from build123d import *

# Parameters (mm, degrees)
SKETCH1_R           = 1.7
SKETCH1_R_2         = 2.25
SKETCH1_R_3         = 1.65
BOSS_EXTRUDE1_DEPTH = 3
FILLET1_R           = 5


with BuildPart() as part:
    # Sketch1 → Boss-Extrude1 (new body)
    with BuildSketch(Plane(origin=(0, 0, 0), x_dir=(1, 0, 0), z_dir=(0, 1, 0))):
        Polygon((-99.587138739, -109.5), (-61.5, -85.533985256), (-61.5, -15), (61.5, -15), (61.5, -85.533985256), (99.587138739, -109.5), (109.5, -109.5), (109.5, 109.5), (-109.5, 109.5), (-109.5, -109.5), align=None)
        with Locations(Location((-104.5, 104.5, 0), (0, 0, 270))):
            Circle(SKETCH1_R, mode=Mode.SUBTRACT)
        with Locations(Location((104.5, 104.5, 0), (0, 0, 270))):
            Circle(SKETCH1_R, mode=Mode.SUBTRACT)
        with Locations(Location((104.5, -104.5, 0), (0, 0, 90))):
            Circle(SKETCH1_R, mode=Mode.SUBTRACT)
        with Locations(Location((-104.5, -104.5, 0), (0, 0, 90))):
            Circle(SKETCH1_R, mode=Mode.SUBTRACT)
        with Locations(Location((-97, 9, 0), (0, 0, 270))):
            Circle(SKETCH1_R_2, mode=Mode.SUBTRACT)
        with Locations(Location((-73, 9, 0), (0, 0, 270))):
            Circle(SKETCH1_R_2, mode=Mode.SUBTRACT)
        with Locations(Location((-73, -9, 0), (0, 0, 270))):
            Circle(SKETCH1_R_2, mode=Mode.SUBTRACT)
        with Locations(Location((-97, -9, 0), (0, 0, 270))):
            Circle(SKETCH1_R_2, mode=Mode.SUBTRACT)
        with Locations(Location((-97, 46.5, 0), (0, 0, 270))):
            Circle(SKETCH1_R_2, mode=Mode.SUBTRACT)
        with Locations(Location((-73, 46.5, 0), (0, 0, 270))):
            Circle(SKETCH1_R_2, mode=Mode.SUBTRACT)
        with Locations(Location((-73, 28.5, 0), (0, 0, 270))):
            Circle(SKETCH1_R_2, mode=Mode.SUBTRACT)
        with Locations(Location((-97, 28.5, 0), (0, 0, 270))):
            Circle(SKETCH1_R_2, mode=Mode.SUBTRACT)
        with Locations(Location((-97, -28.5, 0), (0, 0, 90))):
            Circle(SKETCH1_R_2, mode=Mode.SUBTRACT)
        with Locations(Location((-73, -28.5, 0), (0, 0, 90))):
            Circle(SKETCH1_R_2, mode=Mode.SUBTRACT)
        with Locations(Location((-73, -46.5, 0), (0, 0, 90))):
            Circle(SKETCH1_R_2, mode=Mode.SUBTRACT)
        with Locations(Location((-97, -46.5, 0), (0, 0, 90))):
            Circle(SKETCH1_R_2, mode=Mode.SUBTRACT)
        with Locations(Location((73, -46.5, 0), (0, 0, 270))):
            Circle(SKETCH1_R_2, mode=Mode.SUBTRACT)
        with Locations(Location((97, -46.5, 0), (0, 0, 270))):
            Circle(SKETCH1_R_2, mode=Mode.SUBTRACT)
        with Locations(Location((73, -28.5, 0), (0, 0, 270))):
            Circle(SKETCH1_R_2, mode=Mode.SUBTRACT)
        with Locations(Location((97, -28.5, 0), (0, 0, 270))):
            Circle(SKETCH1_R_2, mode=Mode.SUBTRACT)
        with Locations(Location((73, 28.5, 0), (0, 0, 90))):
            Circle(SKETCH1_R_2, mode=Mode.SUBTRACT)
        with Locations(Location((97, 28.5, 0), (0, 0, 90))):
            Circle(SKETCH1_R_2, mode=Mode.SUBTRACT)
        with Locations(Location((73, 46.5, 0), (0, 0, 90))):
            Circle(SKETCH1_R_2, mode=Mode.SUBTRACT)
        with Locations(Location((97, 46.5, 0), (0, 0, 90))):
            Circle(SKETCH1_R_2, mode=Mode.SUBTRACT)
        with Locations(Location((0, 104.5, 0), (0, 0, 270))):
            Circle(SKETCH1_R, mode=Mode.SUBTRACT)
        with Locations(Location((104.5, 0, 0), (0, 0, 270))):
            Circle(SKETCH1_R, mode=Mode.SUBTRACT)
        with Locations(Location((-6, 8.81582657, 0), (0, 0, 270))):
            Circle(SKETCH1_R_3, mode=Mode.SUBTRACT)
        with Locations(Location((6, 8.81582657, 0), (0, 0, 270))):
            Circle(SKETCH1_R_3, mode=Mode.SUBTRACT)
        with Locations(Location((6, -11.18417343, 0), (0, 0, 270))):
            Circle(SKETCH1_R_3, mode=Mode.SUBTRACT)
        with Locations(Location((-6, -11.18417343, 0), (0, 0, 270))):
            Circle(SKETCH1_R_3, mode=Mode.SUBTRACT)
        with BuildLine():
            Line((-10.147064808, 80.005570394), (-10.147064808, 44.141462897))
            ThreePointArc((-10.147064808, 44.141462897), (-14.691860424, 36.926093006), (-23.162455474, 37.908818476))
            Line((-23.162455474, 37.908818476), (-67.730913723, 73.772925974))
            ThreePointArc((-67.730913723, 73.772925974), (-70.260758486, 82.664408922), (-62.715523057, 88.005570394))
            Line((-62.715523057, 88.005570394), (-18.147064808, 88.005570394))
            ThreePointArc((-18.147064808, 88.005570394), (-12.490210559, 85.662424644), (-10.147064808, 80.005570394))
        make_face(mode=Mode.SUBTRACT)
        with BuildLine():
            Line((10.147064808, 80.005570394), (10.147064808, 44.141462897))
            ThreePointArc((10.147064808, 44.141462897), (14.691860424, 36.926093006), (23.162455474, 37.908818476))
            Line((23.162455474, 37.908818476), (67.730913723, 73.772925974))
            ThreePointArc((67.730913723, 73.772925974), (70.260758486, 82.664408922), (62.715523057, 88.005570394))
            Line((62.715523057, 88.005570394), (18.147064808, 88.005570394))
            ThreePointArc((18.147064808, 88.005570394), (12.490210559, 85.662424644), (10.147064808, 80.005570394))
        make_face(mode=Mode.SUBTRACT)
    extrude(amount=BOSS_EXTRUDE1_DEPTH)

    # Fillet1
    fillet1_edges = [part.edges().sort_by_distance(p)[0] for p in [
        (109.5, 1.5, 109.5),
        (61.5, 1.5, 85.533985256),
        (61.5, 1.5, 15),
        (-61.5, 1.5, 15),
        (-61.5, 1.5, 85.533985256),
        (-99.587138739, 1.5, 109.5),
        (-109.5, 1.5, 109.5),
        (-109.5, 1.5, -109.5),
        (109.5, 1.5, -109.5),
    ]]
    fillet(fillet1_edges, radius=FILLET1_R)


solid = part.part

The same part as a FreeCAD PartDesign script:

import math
import FreeCAD as App
import Part
import Sketcher

V = App.Vector


def edges_at(feature, points):
    """Names of the edges that pass closest to the given points."""
    edges = feature.Shape.Edges
    near = lambda p: min(range(len(edges)), key=lambda i: edges[i].distToShape(Part.Vertex(*p))[0])
    return sorted({f"Edge{near(p) + 1}" for p in points})

doc = App.newDocument("Part")
body = doc.addObject("PartDesign::Body", "Body")

# Sketch on XZ plane
sketch1 = body.newObject("Sketcher::SketchObject", "Sketch")
sketch1.AttachmentSupport = (doc.getObject("XZ_Plane"), [""])
sketch1.MapMode = "FlatFace"
sketch1.addGeometry([
    Part.LineSegment(V(-99.6, 109.5, 0), V(-61.5, 85.5, 0)),  # 0
    Part.LineSegment(V(-61.5, 85.5, 0), V(-61.5, 15, 0)),  # 1
    Part.LineSegment(V(-61.5, 15, 0), V(61.5, 15, 0)),  # 2
    Part.LineSegment(V(61.5, 15, 0), V(61.5, 85.5, 0)),  # 3
    Part.LineSegment(V(61.5, 85.5, 0), V(99.6, 109.5, 0)),  # 4
    Part.LineSegment(V(99.6, 109.5, 0), V(109.5, 109.5, 0)),  # 5
    Part.LineSegment(V(109.5, 109.5, 0), V(109.5, -109.5, 0)),  # 6
    Part.LineSegment(V(109.5, -109.5, 0), V(-109.5, -109.5, 0)),  # 7
    Part.LineSegment(V(-109.5, -109.5, 0), V(-109.5, 109.5, 0)),  # 8
    Part.LineSegment(V(-109.5, 109.5, 0), V(-99.6, 109.5, 0)),  # 9
    Part.Circle(V(-104.5, 104.5, 0), V(0, 0, 1), 1.7),  # 10
    Part.Circle(V(-97, 46.5, 0), V(0, 0, 1), 2.2),  # 11
    Part.Circle(V(-97, 28.5, 0), V(0, 0, 1), 2.2),  # 12
    Part.Circle(V(-73, 46.5, 0), V(0, 0, 1), 2.2),  # 13
    Part.Circle(V(-73, 28.5, 0), V(0, 0, 1), 2.2),  # 14
    Part.Circle(V(-97, 9, 0), V(0, 0, 1), 2.2),  # 15
    Part.Circle(V(-73, 9, 0), V(0, 0, 1), 2.2),  # 16
    Part.Circle(V(-6, 11.2, 0), V(0, 0, 1), 1.6),  # 17
    Part.Circle(V(104.5, 104.5, 0), V(0, 0, 1), 1.7),  # 18
    Part.Circle(V(6, 11.2, 0), V(0, 0, 1), 1.6),  # 19
    Part.Circle(V(73, 46.5, 0), V(0, 0, 1), 2.2),  # 20
    Part.Circle(V(73, 28.5, 0), V(0, 0, 1), 2.2),  # 21
    Part.Circle(V(97, 46.5, 0), V(0, 0, 1), 2.2),  # 22
    Part.Circle(V(97, 28.5, 0), V(0, 0, 1), 2.2),  # 23
    Part.Circle(V(-97, -9, 0), V(0, 0, 1), 2.2),  # 24
    Part.Circle(V(-73, -9, 0), V(0, 0, 1), 2.2),  # 25
    Part.Circle(V(-97, -28.5, 0), V(0, 0, 1), 2.2),  # 26
    Part.Circle(V(-97, -46.5, 0), V(0, 0, 1), 2.2),  # 27
    Part.Circle(V(-73, -28.5, 0), V(0, 0, 1), 2.2),  # 28
    Part.Circle(V(-73, -46.5, 0), V(0, 0, 1), 2.2),  # 29
    Part.Circle(V(-6, -8.8, 0), V(0, 0, 1), 1.6),  # 30
    Part.Circle(V(-104.5, -104.5, 0), V(0, 0, 1), 1.7),  # 31
    Part.ArcOfCircle(Part.Circle(V(-18.1, -80, 0), V(0, 0, 1), 8), math.radians(-90), math.radians(0)),  # 32
    Part.LineSegment(V(-10.1, -80, 0), V(-10.1, -44.1, 0)),  # 33
    Part.ArcOfCircle(Part.Circle(V(-18.1, -44.1, 0), V(0, 0, 1), 8), math.radians(0), math.radians(129)),  # 34
    Part.LineSegment(V(-23.2, -37.9, 0), V(-67.7, -73.8, 0)),  # 35
    Part.ArcOfCircle(Part.Circle(V(-62.7, -80, 0), V(0, 0, 1), 8), math.radians(129), math.radians(270)),  # 36
    Part.LineSegment(V(-62.7, -88, 0), V(-18.1, -88, 0)),  # 37
    Part.Circle(V(6, -8.8, 0), V(0, 0, 1), 1.6),  # 38
    Part.Circle(V(104.5, 0, 0), V(0, 0, 1), 1.7),  # 39
    Part.Circle(V(73, -28.5, 0), V(0, 0, 1), 2.2),  # 40
    Part.Circle(V(73, -46.5, 0), V(0, 0, 1), 2.2),  # 41
    Part.Circle(V(97, -28.5, 0), V(0, 0, 1), 2.2),  # 42
    Part.Circle(V(97, -46.5, 0), V(0, 0, 1), 2.2),  # 43
    Part.LineSegment(V(10.1, -44.1, 0), V(10.1, -80, 0)),  # 44
    Part.ArcOfCircle(Part.Circle(V(18.1, -80, 0), V(0, 0, 1), 8), math.radians(180), math.radians(270)),  # 45
    Part.LineSegment(V(18.1, -88, 0), V(62.7, -88, 0)),  # 46
    Part.ArcOfCircle(Part.Circle(V(62.7, -80, 0), V(0, 0, 1), 8), math.radians(-90), math.radians(51)),  # 47
    Part.LineSegment(V(67.7, -73.8, 0), V(23.2, -37.9, 0)),  # 48
    Part.ArcOfCircle(Part.Circle(V(18.1, -44.1, 0), V(0, 0, 1), 8), math.radians(51), math.radians(180)),  # 49
    Part.Circle(V(0, -104.5, 0), V(0, 0, 1), 1.7),  # 50
    Part.Circle(V(104.5, -104.5, 0), V(0, 0, 1), 1.7),  # 51
], False)
sketch1.addConstraint([
    Sketcher.Constraint("Coincident", 0, 2, 1, 1),
    Sketcher.Constraint("Coincident", 1, 2, 2, 1),
    Sketcher.Constraint("Coincident", 2, 2, 3, 1),
    Sketcher.Constraint("Coincident", 3, 2, 4, 1),
    Sketcher.Constraint("Coincident", 4, 2, 5, 1),
    Sketcher.Constraint("Coincident", 5, 2, 6, 1),
    Sketcher.Constraint("Coincident", 6, 2, 7, 1),
    Sketcher.Constraint("Coincident", 7, 2, 8, 1),
    Sketcher.Constraint("Coincident", 8, 2, 9, 1),
    Sketcher.Constraint("Coincident", 9, 2, 0, 1),
    Sketcher.Constraint("Tangent", 32, 2, 33, 1),
    Sketcher.Constraint("Tangent", 33, 2, 34, 1),
    Sketcher.Constraint("Tangent", 34, 2, 35, 1),
    Sketcher.Constraint("Tangent", 35, 2, 36, 1),
    Sketcher.Constraint("Tangent", 36, 2, 37, 1),
    Sketcher.Constraint("Tangent", 37, 2, 32, 1),
    Sketcher.Constraint("Tangent", 44, 2, 45, 1),
    Sketcher.Constraint("Tangent", 45, 2, 46, 1),
    Sketcher.Constraint("Tangent", 46, 2, 47, 1),
    Sketcher.Constraint("Tangent", 47, 2, 48, 1),
    Sketcher.Constraint("Tangent", 48, 2, 49, 1),
    Sketcher.Constraint("Tangent", 49, 2, 44, 1),
    Sketcher.Constraint("Vertical", 1),
    Sketcher.Constraint("Horizontal", 2),
    Sketcher.Constraint("Vertical", 3),
    Sketcher.Constraint("Horizontal", 5),
    Sketcher.Constraint("Vertical", 6),
    Sketcher.Constraint("Horizontal", 7),
    Sketcher.Constraint("Vertical", 8),
    Sketcher.Constraint("Horizontal", 9),
    Sketcher.Constraint("Vertical", 33),
    Sketcher.Constraint("Horizontal", 37),
    Sketcher.Constraint("Vertical", 44),
    Sketcher.Constraint("Horizontal", 46),
    Sketcher.Constraint("Equal", 11, 12),
    Sketcher.Constraint("Equal", 12, 13),
    Sketcher.Constraint("Equal", 13, 14),
    Sketcher.Constraint("Equal", 14, 15),
    Sketcher.Constraint("Equal", 15, 16),
    Sketcher.Constraint("Equal", 10, 18),
    Sketcher.Constraint("Equal", 17, 19),
    Sketcher.Constraint("Equal", 16, 20),
    Sketcher.Constraint("Equal", 20, 21),
    Sketcher.Constraint("Equal", 21, 22),
    Sketcher.Constraint("Equal", 22, 23),
    Sketcher.Constraint("Equal", 23, 24),
    Sketcher.Constraint("Equal", 24, 25),
    Sketcher.Constraint("Equal", 25, 26),
    Sketcher.Constraint("Equal", 26, 27),
    Sketcher.Constraint("Equal", 27, 28),
    Sketcher.Constraint("Equal", 28, 29),
    Sketcher.Constraint("Equal", 19, 30),
    Sketcher.Constraint("Equal", 18, 31),
    Sketcher.Constraint("Equal", 32, 34),
    Sketcher.Constraint("Equal", 34, 36),
    Sketcher.Constraint("Equal", 30, 38),
    Sketcher.Constraint("Equal", 31, 39),
    Sketcher.Constraint("Equal", 29, 40),
    Sketcher.Constraint("Equal", 40, 41),
    Sketcher.Constraint("Equal", 41, 42),
    Sketcher.Constraint("Equal", 42, 43),
    Sketcher.Constraint("Equal", 36, 45),
    Sketcher.Constraint("Equal", 45, 47),
    Sketcher.Constraint("Equal", 47, 49),
    Sketcher.Constraint("Equal", 39, 50),
    Sketcher.Constraint("Equal", 50, 51),
    Sketcher.Constraint("Symmetric", 23, 3, 26, 3, -1, 1),
    Sketcher.Constraint("Symmetric", 22, 3, 27, 3, -1, 1),
    Sketcher.Constraint("Symmetric", 21, 3, 28, 3, -1, 1),
    Sketcher.Constraint("Symmetric", 20, 3, 29, 3, -1, 1),
    Sketcher.Constraint("Symmetric", 18, 3, 31, 3, -1, 1),
    Sketcher.Constraint("Symmetric", 14, 3, 40, 3, -1, 1),
    Sketcher.Constraint("Symmetric", 13, 3, 41, 3, -1, 1),
    Sketcher.Constraint("Symmetric", 12, 3, 42, 3, -1, 1),
    Sketcher.Constraint("Symmetric", 11, 3, 43, 3, -1, 1),
    Sketcher.Constraint("Symmetric", 10, 3, 51, 3, -1, 1),
    Sketcher.Constraint("Symmetric", 5, 2, 7, 2, -1, 1),
    Sketcher.Constraint("Symmetric", 10, 3, 18, 3, -2),
    Sketcher.Constraint("Symmetric", 17, 3, 19, 3, -2),
    Sketcher.Constraint("Symmetric", 13, 3, 20, 3, -2),
    Sketcher.Constraint("Symmetric", 14, 3, 21, 3, -2),
    Sketcher.Constraint("Symmetric", 11, 3, 22, 3, -2),
    Sketcher.Constraint("Symmetric", 12, 3, 23, 3, -2),
    Sketcher.Constraint("Symmetric", 30, 3, 38, 3, -2),
    Sketcher.Constraint("Symmetric", 32, 3, 45, 3, -2),
    Sketcher.Constraint("Symmetric", 0, 2, 3, 2, -2),
    Sketcher.Constraint("Symmetric", 4, 2, 9, 2, -2),
    Sketcher.Constraint("Symmetric", 35, 2, 47, 2, -2),
    Sketcher.Constraint("Symmetric", 15, 3, 24, 3, -1),
    Sketcher.Constraint("Symmetric", 16, 3, 25, 3, -1),
    Sketcher.Constraint("PointOnObject", 39, 3, -1),
    Sketcher.Constraint("PointOnObject", 50, 3, -2),
    Sketcher.Constraint("Horizontal", 11, 3, 13, 3),
    Sketcher.Constraint("Horizontal", 12, 3, 14, 3),
    Sketcher.Constraint("Horizontal", 15, 3, 16, 3),
    Sketcher.Constraint("Horizontal", 31, 3, 50, 3),
    Sketcher.Constraint("Vertical", 11, 3, 12, 3),
    Sketcher.Constraint("Vertical", 13, 3, 14, 3),
    Sketcher.Constraint("Vertical", 12, 3, 15, 3),
    Sketcher.Constraint("Vertical", 14, 3, 16, 3),
    Sketcher.Constraint("Vertical", 17, 3, 30, 3),
    Sketcher.Constraint("Vertical", 18, 3, 39, 3),
    Sketcher.Constraint("Equal", 7, 6),
    Sketcher.Constraint("Radius", 32, 8.0),
    Sketcher.Constraint("Diameter", 10, 3.4),
    Sketcher.Constraint("Diameter", 11, 4.5),
    Sketcher.Constraint("Diameter", 17, 3.3),
    Sketcher.Constraint("DistanceX", 2, 1, 2, 2, 123.0),
    Sketcher.Constraint("DistanceX", 7, 2, 7, 1, 219.0),
    Sketcher.Constraint("Distance", 0, 45.0),
    Sketcher.Constraint("DistanceX", 11, 3, -1, 1, 97.0),
    Sketcher.Constraint("DistanceX", 13, 3, -1, 1, 73.0),
    Sketcher.Constraint("DistanceY", -1, 1, 15, 3, 9.0),
    Sketcher.Constraint("DistanceX", 17, 3, -1, 1, 6.0),
    Sketcher.Constraint("DistanceY", -1, 1, 1, 2, 15.0),
    Sketcher.Constraint("DistanceY", 11, 3, 10, 3, 58.0),
    Sketcher.Constraint("DistanceY", 12, 3, 11, 3, 18.0),
    Sketcher.Constraint("DistanceX", 10, 3, 18, 3, 209.0),
    Sketcher.Constraint("DistanceY", 26, 3, 12, 3, 57.0),
    Sketcher.Constraint("DistanceY", 30, 3, 17, 3, 20.0),
    Sketcher.Constraint("DistanceX", 5, 1, 5, 2, 9.912861),
    Sketcher.Constraint("DistanceX", 37, 1, 37, 2, 44.568458),
    Sketcher.Constraint("DistanceY", 33, 1, 33, 2, 35.864107),
    Sketcher.Constraint("DistanceY", 32, 3, -1, 1, 80.00557),
    Sketcher.Constraint("DistanceX", 32, 3, 45, 3, 36.29413),
    Sketcher.Constraint("DistanceY", 34, 2, 30, 3, 29.092992),
])
pad1 = body.newObject("PartDesign::Pad", "Pad")
pad1.Profile = sketch1
pad1.Length = 3
pad1.Reversed = True
doc.recompute()

fillet = body.newObject("PartDesign::Fillet", "Fillet")
fillet.Base = (pad1, edges_at(pad1, [
    (109.5, 1.5, 109.5),
    (61.5, 1.5, 85.534),
    (61.5, 1.5, 15),
    (-61.5, 1.5, 15),
    (-61.5, 1.5, 85.534),
    (-99.587, 1.5, 109.5),
    (-109.5, 1.5, 109.5),
    (-109.5, 1.5, -109.5),
    (109.5, 1.5, -109.5),
]))
fillet.Radius = 5

doc.recompute()
